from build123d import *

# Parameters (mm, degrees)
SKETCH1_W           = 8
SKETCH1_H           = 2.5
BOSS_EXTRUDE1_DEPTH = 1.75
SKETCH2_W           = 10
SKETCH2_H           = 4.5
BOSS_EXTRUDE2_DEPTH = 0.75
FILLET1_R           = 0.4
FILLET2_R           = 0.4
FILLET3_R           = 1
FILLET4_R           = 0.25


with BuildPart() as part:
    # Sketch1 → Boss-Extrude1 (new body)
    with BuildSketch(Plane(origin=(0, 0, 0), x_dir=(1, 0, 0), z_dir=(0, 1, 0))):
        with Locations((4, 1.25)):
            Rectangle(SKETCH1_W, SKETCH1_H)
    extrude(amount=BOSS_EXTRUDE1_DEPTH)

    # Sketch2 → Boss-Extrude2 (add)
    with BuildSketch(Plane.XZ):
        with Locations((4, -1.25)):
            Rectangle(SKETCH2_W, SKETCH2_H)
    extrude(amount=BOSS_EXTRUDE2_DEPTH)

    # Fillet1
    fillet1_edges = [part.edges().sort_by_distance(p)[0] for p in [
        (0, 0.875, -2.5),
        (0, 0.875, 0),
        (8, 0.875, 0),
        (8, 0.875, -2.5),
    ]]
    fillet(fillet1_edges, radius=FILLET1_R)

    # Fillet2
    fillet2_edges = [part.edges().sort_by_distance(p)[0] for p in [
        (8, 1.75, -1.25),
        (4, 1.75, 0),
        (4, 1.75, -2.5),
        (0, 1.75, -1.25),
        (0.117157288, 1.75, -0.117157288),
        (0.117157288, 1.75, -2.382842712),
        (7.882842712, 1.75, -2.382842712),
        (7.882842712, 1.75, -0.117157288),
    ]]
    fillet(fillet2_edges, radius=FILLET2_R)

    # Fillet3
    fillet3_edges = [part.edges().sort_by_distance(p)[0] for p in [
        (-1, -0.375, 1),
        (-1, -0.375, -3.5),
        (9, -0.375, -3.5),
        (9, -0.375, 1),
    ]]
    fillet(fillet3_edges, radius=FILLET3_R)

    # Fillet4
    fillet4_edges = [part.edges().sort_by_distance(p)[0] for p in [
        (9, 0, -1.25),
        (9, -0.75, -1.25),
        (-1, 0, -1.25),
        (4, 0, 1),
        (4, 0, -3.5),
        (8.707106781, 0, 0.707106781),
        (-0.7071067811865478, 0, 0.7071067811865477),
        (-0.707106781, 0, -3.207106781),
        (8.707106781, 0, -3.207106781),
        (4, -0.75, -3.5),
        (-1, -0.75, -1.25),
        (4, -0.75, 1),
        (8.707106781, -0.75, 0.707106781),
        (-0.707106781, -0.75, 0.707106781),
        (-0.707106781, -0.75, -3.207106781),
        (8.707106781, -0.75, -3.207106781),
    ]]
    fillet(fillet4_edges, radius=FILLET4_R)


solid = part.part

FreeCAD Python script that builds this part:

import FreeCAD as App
import Part
import Sketcher

V = App.Vector


def edges_at(feature, points):
    """Names of the edges that pass closest to the given points."""
    edges = feature.Shape.Edges
    near = lambda p: min(range(len(edges)), key=lambda i: edges[i].distToShape(Part.Vertex(*p))[0])
    return sorted({f"Edge{near(p) + 1}" for p in points})

doc = App.newDocument("Part")
body = doc.addObject("PartDesign::Body", "Body")

# Sketch on XZ plane
sketch1 = body.newObject("Sketcher::SketchObject", "Sketch")
sketch1.AttachmentSupport = (doc.getObject("XZ_Plane"), [""])
sketch1.MapMode = "FlatFace"
sketch1.addGeometry([
    Part.LineSegment(V(0, -2.5, 0), V(0, 0, 0)),
    Part.LineSegment(V(0, 0, 0), V(8, 0, 0)),
    Part.LineSegment(V(8, 0, 0), V(8, -2.5, 0)),
    Part.LineSegment(V(8, -2.5, 0), V(0, -2.5, 0)),
], False)
sketch1.addConstraint([
    Sketcher.Constraint("Coincident", 0, 2, 1, 1),
    Sketcher.Constraint("Coincident", 1, 2, 2, 1),
    Sketcher.Constraint("Coincident", 2, 2, 3, 1),
    Sketcher.Constraint("Coincident", 3, 2, 0, 1),
    Sketcher.Constraint("Vertical", 0),
    Sketcher.Constraint("Horizontal", 1),
    Sketcher.Constraint("Vertical", 2),
    Sketcher.Constraint("Horizontal", 3),
    Sketcher.Constraint("Coincident", 0, 2, -1, 1),
    Sketcher.Constraint("DistanceX", 1, 1, 1, 2, 8.0),
    Sketcher.Constraint("DistanceY", 0, 1, 0, 2, 2.5),
])
pad1 = body.newObject("PartDesign::Pad", "Pad")
pad1.Profile = sketch1
pad1.Length = 1.75
pad1.Reversed = True

# Sketch on XZ plane
sketch2 = body.newObject("Sketcher::SketchObject", "Sketch001")
sketch2.AttachmentSupport = (doc.getObject("XZ_Plane"), [""])
sketch2.MapMode = "FlatFace"
sketch2.addGeometry([
    Part.LineSegment(V(-1, 1, 0), V(-1, -3.5, 0)),
    Part.LineSegment(V(-1, -3.5, 0), V(9, -3.5, 0)),
    Part.LineSegment(V(9, -3.5, 0), V(9, 1, 0)),
    Part.LineSegment(V(9, 1, 0), V(-1, 1, 0)),
], False)
sketch2.addConstraint([
    Sketcher.Constraint("Coincident", 0, 2, 1, 1),
    Sketcher.Constraint("Coincident", 1, 2, 2, 1),
    Sketcher.Constraint("Coincident", 2, 2, 3, 1),
    Sketcher.Constraint("Coincident", 3, 2, 0, 1),
    Sketcher.Constraint("Vertical", 0),
    Sketcher.Constraint("Horizontal", 1),
    Sketcher.Constraint("Vertical", 2),
    Sketcher.Constraint("Horizontal", 3),
    Sketcher.Constraint("DistanceX", 1, 1, 1, 2, 10.0),
    Sketcher.Constraint("DistanceY", 0, 2, 0, 1, 4.5),
    Sketcher.Constraint("DistanceX", 0, 2, -1, 1, 1.0),
    Sketcher.Constraint("DistanceY", -1, 1, 2, 2, 1.0),
])
pad2 = body.newObject("PartDesign::Pad", "Pad001")
pad2.Profile = sketch2
pad2.Length = 0.75
doc.recompute()

fillet = body.newObject("PartDesign::Fillet", "Fillet")
fillet.Base = (pad2, edges_at(pad2, [
    (0, 0.875, -2.5),
    (0, 0.875, 0),
    (8, 0.875, 0),
    (8, 0.875, -2.5),
]))
fillet.Radius = 0.4
doc.recompute()

fillet2 = body.newObject("PartDesign::Fillet", "Fillet001")
fillet2.Base = (fillet, edges_at(fillet, [
    (8, 1.75, -1.25),
    (4, 1.75, 0),
    (4, 1.75, -2.5),
    (0, 1.75, -1.25),
    (0.117, 1.75, -0.117),
    (0.117, 1.75, -2.383),
    (7.883, 1.75, -2.383),
    (7.883, 1.75, -0.117),
]))
fillet2.Radius = 0.4
doc.recompute()

fillet3 = body.newObject("PartDesign::Fillet", "Fillet002")
fillet3.Base = (fillet2, edges_at(fillet2, [
    (-1, -0.375, 1),
    (-1, -0.375, -3.5),
    (9, -0.375, -3.5),
    (9, -0.375, 1),
]))
fillet3.Radius = 1
doc.recompute()

fillet4 = body.newObject("PartDesign::Fillet", "Fillet003")
fillet4.Base = (fillet3, edges_at(fillet3, [
    (9, 0, -1.25),
    (9, -0.75, -1.25),
    (-1, 0, -1.25),
    (4, 0, 1),
    (4, 0, -3.5),
    (8.707, 0, 0.707),
    (-0.707, 0, 0.707),
    (-0.707, 0, -3.207),
    (8.707, 0, -3.207),
    (4, -0.75, -3.5),
    (-1, -0.75, -1.25),
    (4, -0.75, 1),
    (8.707, -0.75, 0.707),
    (-0.707, -0.75, 0.707),
    (-0.707, -0.75, -3.207),
    (8.707, -0.75, -3.207),
]))
fillet4.Radius = 0.25

doc.recompute()
